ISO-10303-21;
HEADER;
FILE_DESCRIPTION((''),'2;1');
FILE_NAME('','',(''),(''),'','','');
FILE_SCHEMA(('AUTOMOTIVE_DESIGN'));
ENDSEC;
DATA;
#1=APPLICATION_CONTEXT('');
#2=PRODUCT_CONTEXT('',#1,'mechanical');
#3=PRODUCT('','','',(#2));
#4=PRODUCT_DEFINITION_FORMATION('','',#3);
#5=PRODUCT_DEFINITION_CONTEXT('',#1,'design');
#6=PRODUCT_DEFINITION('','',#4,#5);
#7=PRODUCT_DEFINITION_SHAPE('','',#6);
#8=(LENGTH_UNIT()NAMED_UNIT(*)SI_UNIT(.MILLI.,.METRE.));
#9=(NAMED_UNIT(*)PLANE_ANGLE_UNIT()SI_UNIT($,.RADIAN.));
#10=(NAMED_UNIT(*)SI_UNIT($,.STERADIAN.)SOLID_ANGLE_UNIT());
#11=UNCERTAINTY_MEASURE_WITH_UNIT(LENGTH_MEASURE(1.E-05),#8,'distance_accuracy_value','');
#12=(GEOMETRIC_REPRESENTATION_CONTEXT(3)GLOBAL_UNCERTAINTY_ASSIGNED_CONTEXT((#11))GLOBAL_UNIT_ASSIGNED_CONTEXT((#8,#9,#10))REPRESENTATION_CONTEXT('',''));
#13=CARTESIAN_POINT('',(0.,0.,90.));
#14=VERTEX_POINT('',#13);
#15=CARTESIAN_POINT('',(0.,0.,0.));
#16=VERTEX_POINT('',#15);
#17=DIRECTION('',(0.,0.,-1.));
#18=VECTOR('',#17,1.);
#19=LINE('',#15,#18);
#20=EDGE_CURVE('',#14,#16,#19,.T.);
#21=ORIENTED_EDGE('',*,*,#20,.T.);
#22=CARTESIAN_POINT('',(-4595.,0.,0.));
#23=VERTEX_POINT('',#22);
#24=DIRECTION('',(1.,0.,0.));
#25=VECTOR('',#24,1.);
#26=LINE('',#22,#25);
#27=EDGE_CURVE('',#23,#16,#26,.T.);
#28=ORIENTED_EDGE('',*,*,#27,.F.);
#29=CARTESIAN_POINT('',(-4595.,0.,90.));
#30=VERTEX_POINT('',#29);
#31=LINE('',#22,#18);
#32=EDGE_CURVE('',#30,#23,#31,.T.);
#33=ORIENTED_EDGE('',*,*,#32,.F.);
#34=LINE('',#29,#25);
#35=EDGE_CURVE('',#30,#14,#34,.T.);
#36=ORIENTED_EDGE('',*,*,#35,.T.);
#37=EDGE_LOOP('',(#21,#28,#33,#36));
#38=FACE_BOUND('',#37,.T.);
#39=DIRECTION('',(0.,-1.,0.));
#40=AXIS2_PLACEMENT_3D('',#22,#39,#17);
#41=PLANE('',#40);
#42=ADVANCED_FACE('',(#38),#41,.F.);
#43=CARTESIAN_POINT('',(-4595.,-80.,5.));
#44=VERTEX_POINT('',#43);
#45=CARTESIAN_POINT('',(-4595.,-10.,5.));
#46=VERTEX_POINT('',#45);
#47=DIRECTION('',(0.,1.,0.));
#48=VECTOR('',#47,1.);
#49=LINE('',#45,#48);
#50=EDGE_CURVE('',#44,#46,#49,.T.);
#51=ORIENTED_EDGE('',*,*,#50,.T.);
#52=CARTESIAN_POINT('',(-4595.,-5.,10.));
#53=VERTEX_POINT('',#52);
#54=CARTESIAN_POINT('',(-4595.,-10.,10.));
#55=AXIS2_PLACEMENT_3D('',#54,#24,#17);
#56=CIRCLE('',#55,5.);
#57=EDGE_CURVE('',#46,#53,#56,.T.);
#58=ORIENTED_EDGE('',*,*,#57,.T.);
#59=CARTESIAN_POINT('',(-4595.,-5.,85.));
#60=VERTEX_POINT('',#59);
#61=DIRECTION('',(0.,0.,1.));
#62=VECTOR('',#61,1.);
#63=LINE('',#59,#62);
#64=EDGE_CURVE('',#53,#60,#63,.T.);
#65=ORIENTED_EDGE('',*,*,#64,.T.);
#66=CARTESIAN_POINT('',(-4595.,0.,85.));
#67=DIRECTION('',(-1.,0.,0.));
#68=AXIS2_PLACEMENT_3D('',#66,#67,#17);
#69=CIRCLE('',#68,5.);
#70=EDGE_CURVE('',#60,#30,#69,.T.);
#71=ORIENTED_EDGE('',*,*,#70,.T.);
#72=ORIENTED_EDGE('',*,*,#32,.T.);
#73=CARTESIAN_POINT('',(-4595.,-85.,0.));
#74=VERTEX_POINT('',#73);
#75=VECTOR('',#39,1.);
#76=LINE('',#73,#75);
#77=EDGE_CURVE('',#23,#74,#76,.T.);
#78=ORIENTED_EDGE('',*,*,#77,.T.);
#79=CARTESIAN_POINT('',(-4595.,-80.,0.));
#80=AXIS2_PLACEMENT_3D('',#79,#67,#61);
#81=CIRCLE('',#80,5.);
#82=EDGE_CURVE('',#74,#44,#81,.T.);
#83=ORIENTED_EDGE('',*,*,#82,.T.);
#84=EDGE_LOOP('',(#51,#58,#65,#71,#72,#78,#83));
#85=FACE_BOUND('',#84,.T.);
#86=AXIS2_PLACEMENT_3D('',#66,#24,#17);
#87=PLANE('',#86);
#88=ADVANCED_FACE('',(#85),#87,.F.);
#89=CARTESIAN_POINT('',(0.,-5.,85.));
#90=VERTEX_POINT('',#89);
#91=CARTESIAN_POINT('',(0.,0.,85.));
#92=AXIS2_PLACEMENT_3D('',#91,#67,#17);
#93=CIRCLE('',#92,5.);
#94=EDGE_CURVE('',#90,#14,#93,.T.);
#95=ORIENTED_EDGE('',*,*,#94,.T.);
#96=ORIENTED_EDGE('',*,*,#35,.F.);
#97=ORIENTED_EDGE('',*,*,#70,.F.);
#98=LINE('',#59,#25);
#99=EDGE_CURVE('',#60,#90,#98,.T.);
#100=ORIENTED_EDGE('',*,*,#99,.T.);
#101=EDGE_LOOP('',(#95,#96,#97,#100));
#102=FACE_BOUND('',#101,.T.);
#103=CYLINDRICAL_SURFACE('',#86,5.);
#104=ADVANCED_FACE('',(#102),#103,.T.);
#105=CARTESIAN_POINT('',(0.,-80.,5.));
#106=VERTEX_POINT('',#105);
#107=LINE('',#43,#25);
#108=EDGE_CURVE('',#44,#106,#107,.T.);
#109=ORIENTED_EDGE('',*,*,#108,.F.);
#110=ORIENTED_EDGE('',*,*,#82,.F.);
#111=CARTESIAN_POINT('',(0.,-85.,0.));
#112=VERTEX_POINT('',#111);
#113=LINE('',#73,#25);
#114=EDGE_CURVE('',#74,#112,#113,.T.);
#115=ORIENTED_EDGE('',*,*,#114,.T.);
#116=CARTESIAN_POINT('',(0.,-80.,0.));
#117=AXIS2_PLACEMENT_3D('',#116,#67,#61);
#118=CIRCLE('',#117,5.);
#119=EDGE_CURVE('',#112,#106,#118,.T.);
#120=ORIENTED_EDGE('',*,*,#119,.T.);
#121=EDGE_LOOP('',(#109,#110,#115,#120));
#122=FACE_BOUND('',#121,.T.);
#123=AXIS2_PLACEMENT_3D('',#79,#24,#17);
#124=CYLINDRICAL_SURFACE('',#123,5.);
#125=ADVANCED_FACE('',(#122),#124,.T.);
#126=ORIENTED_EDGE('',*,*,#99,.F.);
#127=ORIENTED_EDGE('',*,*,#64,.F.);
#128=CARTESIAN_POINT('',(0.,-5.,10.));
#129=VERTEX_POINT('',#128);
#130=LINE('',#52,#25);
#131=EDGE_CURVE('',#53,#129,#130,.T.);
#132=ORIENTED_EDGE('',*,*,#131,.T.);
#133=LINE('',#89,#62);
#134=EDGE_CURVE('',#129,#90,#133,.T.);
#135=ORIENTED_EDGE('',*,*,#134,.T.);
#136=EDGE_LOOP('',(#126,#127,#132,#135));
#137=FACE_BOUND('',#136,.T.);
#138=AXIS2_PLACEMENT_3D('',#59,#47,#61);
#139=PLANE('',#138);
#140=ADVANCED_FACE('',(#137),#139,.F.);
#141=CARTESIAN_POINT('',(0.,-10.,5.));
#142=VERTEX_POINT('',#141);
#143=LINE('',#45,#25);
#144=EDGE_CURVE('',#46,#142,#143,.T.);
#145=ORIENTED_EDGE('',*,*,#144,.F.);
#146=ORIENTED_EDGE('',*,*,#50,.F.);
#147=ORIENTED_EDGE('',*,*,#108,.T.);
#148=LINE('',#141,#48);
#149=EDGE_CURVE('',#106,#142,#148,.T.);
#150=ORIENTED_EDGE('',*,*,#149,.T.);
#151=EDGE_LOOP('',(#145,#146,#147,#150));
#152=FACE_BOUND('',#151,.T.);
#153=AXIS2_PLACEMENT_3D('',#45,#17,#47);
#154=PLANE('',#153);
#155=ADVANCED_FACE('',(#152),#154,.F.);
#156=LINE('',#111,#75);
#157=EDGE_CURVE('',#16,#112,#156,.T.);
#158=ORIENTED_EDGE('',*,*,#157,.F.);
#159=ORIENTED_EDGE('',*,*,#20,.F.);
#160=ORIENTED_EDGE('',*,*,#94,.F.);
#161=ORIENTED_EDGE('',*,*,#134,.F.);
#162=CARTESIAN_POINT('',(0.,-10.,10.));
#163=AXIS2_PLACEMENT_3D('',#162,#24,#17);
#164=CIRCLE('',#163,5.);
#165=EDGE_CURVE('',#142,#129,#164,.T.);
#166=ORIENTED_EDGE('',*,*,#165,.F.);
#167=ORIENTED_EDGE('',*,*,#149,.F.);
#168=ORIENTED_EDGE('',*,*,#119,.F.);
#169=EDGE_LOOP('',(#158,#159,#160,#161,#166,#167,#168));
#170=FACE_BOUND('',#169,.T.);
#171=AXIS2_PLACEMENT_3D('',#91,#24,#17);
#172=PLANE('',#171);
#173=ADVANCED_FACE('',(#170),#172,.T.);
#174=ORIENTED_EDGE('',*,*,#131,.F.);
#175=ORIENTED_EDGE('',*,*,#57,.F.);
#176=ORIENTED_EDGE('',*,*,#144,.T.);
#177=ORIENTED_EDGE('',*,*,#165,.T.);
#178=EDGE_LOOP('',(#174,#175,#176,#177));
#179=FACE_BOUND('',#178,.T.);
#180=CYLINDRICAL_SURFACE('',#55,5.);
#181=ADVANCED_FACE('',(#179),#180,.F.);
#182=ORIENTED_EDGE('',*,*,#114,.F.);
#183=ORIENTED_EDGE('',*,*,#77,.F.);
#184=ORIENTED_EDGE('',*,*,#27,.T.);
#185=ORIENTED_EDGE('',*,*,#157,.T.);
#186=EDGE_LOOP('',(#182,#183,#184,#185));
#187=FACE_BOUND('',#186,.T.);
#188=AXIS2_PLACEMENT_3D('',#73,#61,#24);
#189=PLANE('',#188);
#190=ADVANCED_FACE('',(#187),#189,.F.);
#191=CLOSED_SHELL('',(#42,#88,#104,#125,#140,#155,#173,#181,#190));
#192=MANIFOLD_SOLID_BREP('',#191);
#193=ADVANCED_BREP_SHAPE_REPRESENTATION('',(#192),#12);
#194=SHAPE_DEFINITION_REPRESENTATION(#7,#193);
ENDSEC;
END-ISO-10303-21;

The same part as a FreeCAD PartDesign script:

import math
import FreeCAD as App
import Part
import Sketcher

V = App.Vector
Q = App.Units.Quantity

doc = App.newDocument("Part")
body = doc.addObject("PartDesign::Body", "Body")

sketch1 = body.newObject("Sketcher::SketchObject", "Sketch")
sketch1.AttachmentSupport = (doc.getObject("YZ_Plane"), [""])
sketch1.MapMode = "FlatFace"
sketch1.addGeometry([
    Part.LineSegment(V(0, 90, 0), V(0, 0, 0)),
    Part.LineSegment(V(0, 0, 0), V(-85, 0, 0)),
    Part.ArcOfCircle(Part.Circle(V(-80, 0, 0), V(0, 0, 1), 5), math.radians(90), math.radians(180)),
    Part.LineSegment(V(-80, 5, 0), V(-10, 5, 0)),
    Part.ArcOfCircle(Part.Circle(V(-10, 10, 0), V(0, 0, 1), 5), math.radians(-90), math.radians(0)),
    Part.LineSegment(V(-5, 10, 0), V(-5, 85, 0)),
    Part.ArcOfCircle(Part.Circle(V(0, 85, 0), V(0, 0, 1), 5), math.radians(90), math.radians(180)),
], False)
sketch1.addConstraint([
    Sketcher.Constraint("Coincident", 0, 2, 1, 1),
    Sketcher.Constraint("Coincident", 1, 2, 2, 2),
    Sketcher.Constraint("Tangent", 2, 1, 3, 1),
    Sketcher.Constraint("Tangent", 3, 2, 4, 1),
    Sketcher.Constraint("Tangent", 4, 2, 5, 1),
    Sketcher.Constraint("Tangent", 5, 2, 6, 2),
    Sketcher.Constraint("Coincident", 6, 1, 0, 1),
    Sketcher.Constraint("Vertical", 0),
    Sketcher.Constraint("Horizontal", 1),
    Sketcher.Constraint("Horizontal", 3),
    Sketcher.Constraint("Vertical", 5),
    Sketcher.Constraint("Coincident", 0, 2, -1, 1),
    Sketcher.Constraint("Equal", 2, 4),
    Sketcher.Constraint("Equal", 4, 6),
    Sketcher.Constraint("PointOnObject", 2, 3, -1),
    Sketcher.Constraint("PointOnObject", 6, 3, -2),
    Sketcher.Constraint("Radius", 2, Q("5 mm")),
    Sketcher.Constraint("DistanceX", 1, 2, 1, 1, Q("85 mm")),
    Sketcher.Constraint("DistanceY", 0, 2, 0, 1, Q("90 mm")),
])
pad1 = body.newObject("PartDesign::Pad", "Pad")
pad1.Profile = sketch1
pad1.Length = 4595
pad1.Reversed = True

doc.recompute()
